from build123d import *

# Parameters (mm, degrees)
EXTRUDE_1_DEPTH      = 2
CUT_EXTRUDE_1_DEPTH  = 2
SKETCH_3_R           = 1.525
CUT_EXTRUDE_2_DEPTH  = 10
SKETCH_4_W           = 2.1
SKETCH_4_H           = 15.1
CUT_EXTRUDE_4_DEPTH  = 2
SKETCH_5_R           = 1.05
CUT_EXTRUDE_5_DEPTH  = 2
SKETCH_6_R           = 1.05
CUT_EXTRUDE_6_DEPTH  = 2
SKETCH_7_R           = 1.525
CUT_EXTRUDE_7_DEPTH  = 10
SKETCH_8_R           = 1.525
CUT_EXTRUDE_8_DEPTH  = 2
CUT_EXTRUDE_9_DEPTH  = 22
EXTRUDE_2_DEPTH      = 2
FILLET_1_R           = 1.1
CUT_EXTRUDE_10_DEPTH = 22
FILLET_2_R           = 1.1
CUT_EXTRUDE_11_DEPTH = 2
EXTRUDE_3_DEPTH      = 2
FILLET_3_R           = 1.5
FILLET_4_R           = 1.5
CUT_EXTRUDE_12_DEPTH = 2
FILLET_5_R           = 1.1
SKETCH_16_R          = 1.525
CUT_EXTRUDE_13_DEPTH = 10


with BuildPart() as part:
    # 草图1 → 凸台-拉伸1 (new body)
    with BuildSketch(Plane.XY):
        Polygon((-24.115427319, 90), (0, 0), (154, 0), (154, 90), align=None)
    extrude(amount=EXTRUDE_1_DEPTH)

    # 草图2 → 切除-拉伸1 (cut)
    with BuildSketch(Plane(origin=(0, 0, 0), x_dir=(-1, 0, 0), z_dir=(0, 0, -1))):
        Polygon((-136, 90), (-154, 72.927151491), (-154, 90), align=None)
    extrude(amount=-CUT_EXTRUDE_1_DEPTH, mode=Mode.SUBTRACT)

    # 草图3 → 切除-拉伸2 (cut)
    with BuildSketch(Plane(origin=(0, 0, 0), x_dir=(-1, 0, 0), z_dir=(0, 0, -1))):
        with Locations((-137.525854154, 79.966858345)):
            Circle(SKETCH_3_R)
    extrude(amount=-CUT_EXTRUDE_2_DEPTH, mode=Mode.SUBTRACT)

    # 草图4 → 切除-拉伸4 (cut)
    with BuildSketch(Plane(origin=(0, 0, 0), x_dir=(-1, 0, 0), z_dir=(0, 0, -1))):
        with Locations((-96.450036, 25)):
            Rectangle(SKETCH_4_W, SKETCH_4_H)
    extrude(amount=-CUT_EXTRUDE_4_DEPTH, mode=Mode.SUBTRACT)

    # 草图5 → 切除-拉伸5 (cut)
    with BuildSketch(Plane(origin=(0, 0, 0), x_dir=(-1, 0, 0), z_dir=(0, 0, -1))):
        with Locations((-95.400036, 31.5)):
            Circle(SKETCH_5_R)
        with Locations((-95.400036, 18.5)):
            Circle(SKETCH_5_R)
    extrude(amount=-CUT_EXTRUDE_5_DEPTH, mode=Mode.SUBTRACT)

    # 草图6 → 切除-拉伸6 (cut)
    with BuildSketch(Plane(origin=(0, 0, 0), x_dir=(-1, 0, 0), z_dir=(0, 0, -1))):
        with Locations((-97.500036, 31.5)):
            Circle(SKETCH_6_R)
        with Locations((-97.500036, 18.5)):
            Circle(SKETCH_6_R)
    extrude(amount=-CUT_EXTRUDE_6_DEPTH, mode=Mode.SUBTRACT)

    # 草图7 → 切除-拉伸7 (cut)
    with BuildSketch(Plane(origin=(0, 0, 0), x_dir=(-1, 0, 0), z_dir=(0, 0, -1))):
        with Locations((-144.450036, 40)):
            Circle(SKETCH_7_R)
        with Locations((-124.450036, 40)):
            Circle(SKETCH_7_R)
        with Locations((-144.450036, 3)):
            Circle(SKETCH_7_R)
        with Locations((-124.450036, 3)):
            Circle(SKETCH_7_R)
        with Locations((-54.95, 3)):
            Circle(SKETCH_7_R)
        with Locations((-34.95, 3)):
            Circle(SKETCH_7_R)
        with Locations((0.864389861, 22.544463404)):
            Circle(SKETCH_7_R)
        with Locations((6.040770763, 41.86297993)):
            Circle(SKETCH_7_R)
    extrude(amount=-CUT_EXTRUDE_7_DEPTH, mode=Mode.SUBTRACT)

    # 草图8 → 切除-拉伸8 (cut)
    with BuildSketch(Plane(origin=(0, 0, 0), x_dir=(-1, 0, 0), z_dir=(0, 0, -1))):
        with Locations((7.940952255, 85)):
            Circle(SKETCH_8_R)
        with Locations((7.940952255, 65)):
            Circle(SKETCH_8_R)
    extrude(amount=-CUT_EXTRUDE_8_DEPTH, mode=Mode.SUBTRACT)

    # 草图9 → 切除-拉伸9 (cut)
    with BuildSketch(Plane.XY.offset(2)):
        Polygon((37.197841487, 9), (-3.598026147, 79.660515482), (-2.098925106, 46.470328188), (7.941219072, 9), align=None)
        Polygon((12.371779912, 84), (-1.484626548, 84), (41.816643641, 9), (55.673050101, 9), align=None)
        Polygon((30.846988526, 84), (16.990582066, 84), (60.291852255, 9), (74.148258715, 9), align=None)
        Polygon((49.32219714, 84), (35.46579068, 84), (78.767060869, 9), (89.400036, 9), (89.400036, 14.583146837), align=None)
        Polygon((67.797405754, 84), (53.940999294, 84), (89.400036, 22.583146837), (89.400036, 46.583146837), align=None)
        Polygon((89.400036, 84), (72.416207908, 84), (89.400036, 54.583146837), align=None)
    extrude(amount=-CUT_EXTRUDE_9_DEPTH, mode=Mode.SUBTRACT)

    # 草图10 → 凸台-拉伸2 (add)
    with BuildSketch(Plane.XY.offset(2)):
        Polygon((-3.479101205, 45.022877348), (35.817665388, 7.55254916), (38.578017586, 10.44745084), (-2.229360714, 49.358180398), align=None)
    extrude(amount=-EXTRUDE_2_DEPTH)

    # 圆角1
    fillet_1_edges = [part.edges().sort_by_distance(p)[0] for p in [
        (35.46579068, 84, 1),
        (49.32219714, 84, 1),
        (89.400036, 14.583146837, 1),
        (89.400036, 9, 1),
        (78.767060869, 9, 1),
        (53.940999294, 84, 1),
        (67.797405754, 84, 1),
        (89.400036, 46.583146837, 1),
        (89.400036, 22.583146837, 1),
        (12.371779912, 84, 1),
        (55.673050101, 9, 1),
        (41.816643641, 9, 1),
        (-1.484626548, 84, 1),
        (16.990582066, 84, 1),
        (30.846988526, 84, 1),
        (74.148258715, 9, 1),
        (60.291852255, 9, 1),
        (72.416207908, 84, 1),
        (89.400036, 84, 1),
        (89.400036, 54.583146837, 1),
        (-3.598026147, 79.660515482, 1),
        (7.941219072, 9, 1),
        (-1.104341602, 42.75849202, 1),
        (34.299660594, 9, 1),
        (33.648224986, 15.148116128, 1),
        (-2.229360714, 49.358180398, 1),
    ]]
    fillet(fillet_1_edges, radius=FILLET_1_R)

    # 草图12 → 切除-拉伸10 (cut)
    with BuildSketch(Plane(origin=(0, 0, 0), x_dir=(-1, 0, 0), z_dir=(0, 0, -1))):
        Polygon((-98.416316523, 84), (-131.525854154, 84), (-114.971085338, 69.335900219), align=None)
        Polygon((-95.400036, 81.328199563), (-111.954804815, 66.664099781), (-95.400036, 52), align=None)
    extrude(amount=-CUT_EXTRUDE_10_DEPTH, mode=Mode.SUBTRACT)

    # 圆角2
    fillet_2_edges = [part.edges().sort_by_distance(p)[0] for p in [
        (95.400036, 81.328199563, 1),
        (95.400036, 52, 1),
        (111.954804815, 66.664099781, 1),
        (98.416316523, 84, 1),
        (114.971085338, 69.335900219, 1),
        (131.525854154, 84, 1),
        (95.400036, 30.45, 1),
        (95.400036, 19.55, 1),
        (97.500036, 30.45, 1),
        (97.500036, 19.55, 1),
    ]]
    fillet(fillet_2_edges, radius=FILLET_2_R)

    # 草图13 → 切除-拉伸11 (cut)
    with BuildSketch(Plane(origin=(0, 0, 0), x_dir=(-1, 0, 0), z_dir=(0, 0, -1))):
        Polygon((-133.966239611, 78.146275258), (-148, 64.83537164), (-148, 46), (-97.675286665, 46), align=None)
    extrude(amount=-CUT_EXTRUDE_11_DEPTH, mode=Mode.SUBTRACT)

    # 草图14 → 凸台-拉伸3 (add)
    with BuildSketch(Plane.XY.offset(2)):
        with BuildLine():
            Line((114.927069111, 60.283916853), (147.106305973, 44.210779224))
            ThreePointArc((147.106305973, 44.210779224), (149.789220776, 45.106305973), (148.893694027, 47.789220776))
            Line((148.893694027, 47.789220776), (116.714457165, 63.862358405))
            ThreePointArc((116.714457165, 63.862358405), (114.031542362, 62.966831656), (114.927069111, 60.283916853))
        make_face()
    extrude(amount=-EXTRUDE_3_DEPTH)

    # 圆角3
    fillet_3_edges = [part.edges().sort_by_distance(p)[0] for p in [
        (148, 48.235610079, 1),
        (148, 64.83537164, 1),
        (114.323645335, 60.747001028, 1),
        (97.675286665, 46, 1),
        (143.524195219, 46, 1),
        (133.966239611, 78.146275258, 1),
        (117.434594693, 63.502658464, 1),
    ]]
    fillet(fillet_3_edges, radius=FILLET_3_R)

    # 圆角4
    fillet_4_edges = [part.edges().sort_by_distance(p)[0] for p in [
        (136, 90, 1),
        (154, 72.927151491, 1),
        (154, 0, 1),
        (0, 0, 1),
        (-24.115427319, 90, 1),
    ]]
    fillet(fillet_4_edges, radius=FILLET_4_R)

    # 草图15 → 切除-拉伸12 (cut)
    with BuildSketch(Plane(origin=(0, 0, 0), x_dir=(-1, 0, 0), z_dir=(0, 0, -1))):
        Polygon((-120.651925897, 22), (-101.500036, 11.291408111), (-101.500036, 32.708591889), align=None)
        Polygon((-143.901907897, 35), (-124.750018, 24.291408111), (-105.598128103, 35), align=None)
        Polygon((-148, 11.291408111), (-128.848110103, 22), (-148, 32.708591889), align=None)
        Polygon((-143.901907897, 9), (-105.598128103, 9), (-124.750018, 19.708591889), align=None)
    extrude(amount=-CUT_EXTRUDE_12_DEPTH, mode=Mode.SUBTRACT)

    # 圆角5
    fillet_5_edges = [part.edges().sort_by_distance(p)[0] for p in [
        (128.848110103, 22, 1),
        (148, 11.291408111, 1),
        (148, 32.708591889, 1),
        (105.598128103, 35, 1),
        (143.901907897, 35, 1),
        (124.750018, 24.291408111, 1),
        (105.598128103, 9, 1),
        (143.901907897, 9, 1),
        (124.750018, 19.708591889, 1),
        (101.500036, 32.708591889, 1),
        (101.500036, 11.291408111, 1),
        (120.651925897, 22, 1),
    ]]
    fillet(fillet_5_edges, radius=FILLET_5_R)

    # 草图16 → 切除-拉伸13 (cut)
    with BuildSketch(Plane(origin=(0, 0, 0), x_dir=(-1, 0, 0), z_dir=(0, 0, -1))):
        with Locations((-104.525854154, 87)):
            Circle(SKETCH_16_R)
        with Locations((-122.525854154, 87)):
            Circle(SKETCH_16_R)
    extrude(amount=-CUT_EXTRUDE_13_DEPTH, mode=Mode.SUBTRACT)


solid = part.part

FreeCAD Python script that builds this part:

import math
import FreeCAD as App
import Part
import Sketcher

V = App.Vector
Q = App.Units.Quantity


def edges_at(feature, points):
    """Names of the edges that pass closest to the given points."""
    edges = feature.Shape.Edges
    near = lambda p: min(range(len(edges)), key=lambda i: edges[i].distToShape(Part.Vertex(*p))[0])
    return sorted({f"Edge{near(p) + 1}" for p in points})

doc = App.newDocument("Part")
body = doc.addObject("PartDesign::Body", "Body")

sketch1 = body.newObject("Sketcher::SketchObject", "Sketch")
sketch1.AttachmentSupport = (doc.getObject("XY_Plane"), [""])
sketch1.MapMode = "FlatFace"
sketch1.addGeometry([
    Part.LineSegment(V(-24, 90, 0), V(0, 0, 0)),
    Part.LineSegment(V(0, 0, 0), V(154, 0, 0)),
    Part.LineSegment(V(154, 0, 0), V(154, 90, 0)),
    Part.LineSegment(V(154, 90, 0), V(-24, 90, 0)),
], False)
sketch1.addConstraint([
    Sketcher.Constraint("Coincident", 0, 2, 1, 1),
    Sketcher.Constraint("Coincident", 1, 2, 2, 1),
    Sketcher.Constraint("Coincident", 2, 2, 3, 1),
    Sketcher.Constraint("Coincident", 3, 2, 0, 1),
    Sketcher.Constraint("Horizontal", 1),
    Sketcher.Constraint("Vertical", 2),
    Sketcher.Constraint("Horizontal", 3),
    Sketcher.Constraint("Coincident", 0, 2, -1, 1),
    Sketcher.Constraint("DistanceX", 1, 1, 1, 2, 154.0),
    Sketcher.Constraint("DistanceY", 2, 1, 2, 2, 90.0),
    Sketcher.Constraint("Angle", 0, Q("-75 deg")),
])
pad1 = body.newObject("PartDesign::Pad", "Pad")
pad1.Profile = sketch1
pad1.Length = 2

sketch2 = body.newObject("Sketcher::SketchObject", "Sketch001")
sketch2.AttachmentSupport = (doc.getObject("XY_Plane"), [""])
sketch2.MapMode = "FlatFace"
sketch2.addGeometry([
    Part.LineSegment(V(154, 73, 0), V(136, 90, 0)),
    Part.LineSegment(V(136, 90, 0), V(154, 90, 0)),
    Part.LineSegment(V(154, 90, 0), V(154, 73, 0)),
], False)
sketch2.addConstraint([
    Sketcher.Constraint("Coincident", 0, 2, 1, 1),
    Sketcher.Constraint("Coincident", 1, 2, 2, 1),
    Sketcher.Constraint("Coincident", 2, 2, 0, 1),
    Sketcher.Constraint("Horizontal", 1),
    Sketcher.Constraint("Vertical", 2),
    Sketcher.Constraint("DistanceX", 1, 1, 1, 2, 18.0),
    Sketcher.Constraint("DistanceX", -1, 1, 0, 2, 136.0),
    Sketcher.Constraint("DistanceY", -1, 1, 0, 2, 90.0),
    Sketcher.Constraint("DistanceY", 2, 2, 2, 1, 17.072849),
])
pocket1 = body.newObject("PartDesign::Pocket", "Pocket")
pocket1.Profile = sketch2
pocket1.Length = 2
pocket1.Reversed = True

sketch3 = body.newObject("Sketcher::SketchObject", "Sketch002")
sketch3.AttachmentSupport = (doc.getObject("XY_Plane"), [""])
sketch3.MapMode = "FlatFace"
sketch3.addGeometry(Part.Circle(V(137.5, 80, 0), V(0, 0, 1), 1.5), False)
sketch3.addConstraint([
    Sketcher.Constraint("Diameter", 0, 3.05),
    Sketcher.Constraint("DistanceY", -1, 1, 0, 3, 79.966858),
    Sketcher.Constraint("DistanceX", -1, 1, 0, 3, 137.525854),
])
pocket2 = body.newObject("PartDesign::Pocket", "Pocket001")
pocket2.Profile = sketch3
pocket2.Length = 10
pocket2.Reversed = True

sketch4 = body.newObject("Sketcher::SketchObject", "Sketch003")
sketch4.AttachmentSupport = (doc.getObject("XY_Plane"), [""])
sketch4.MapMode = "FlatFace"
sketch4.addGeometry([
    Part.LineSegment(V(97.5, 32.5, 0), V(97.5, 17.4, 0)),
    Part.LineSegment(V(97.5, 17.4, 0), V(95.4, 17.4, 0)),
    Part.LineSegment(V(95.4, 17.4, 0), V(95.4, 32.5, 0)),
    Part.LineSegment(V(95.4, 32.5, 0), V(97.5, 32.5, 0)),
], False)
sketch4.addConstraint([
    Sketcher.Constraint("Coincident", 0, 2, 1, 1),
    Sketcher.Constraint("Coincident", 1, 2, 2, 1),
    Sketcher.Constraint("Coincident", 2, 2, 3, 1),
    Sketcher.Constraint("Coincident", 3, 2, 0, 1),
    Sketcher.Constraint("Vertical", 0),
    Sketcher.Constraint("Horizontal", 1),
    Sketcher.Constraint("Vertical", 2),
    Sketcher.Constraint("Horizontal", 3),
    Sketcher.Constraint("DistanceX", 1, 2, 1, 1, 2.1),
    Sketcher.Constraint("DistanceY", 0, 2, 0, 1, 15.1),
    Sketcher.Constraint("DistanceY", -1, 1, 0, 2, 17.45),
    Sketcher.Constraint("DistanceX", -1, 1, 0, 2, 97.500036),
])
pocket3 = body.newObject("PartDesign::Pocket", "Pocket002")
pocket3.Profile = sketch4
pocket3.Length = 2
pocket3.Reversed = True

sketch5 = body.newObject("Sketcher::SketchObject", "Sketch004")
sketch5.AttachmentSupport = (doc.getObject("XY_Plane"), [""])
sketch5.MapMode = "FlatFace"
sketch5.addGeometry([
    Part.Circle(V(95.4, 31.5, 0), V(0, 0, 1), 1.1),
    Part.Circle(V(95.4, 18.5, 0), V(0, 0, 1), 1.1),
], False)
sketch5.addConstraint([
    Sketcher.Constraint("Equal", 0, 1),
    Sketcher.Constraint("Vertical", 0, 3, 1, 3),
    Sketcher.Constraint("Diameter", 0, 2.1),
    Sketcher.Constraint("DistanceY", 1, 3, 0, 3, 13.0),
    Sketcher.Constraint("DistanceY", -1, 1, 0, 3, 31.5),
    Sketcher.Constraint("DistanceX", -1, 1, 0, 3, 95.400036),
])
pocket4 = body.newObject("PartDesign::Pocket", "Pocket003")
pocket4.Profile = sketch5
pocket4.Length = 2
pocket4.Reversed = True

sketch6 = body.newObject("Sketcher::SketchObject", "Sketch005")
sketch6.AttachmentSupport = (doc.getObject("XY_Plane"), [""])
sketch6.MapMode = "FlatFace"
sketch6.addGeometry([
    Part.Circle(V(97.5, 31.5, 0), V(0, 0, 1), 1.1),
    Part.Circle(V(97.5, 18.5, 0), V(0, 0, 1), 1.1),
], False)
sketch6.addConstraint([
    Sketcher.Constraint("Equal", 0, 1),
    Sketcher.Constraint("Vertical", 0, 3, 1, 3),
    Sketcher.Constraint("Diameter", 0, 2.1),
    Sketcher.Constraint("DistanceY", 1, 3, 0, 3, 13.0),
    Sketcher.Constraint("DistanceY", -1, 1, 0, 3, 31.5),
    Sketcher.Constraint("DistanceX", -1, 1, 0, 3, 97.500036),
])
pocket5 = body.newObject("PartDesign::Pocket", "Pocket004")
pocket5.Profile = sketch6
pocket5.Length = 2
pocket5.Reversed = True

sketch7 = body.newObject("Sketcher::SketchObject", "Sketch006")
sketch7.AttachmentSupport = (doc.getObject("XY_Plane"), [""])
sketch7.MapMode = "FlatFace"
sketch7.addGeometry([
    Part.Circle(V(144.5, 40, 0), V(0, 0, 1), 1.5),
    Part.Circle(V(124.5, 40, 0), V(0, 0, 1), 1.5),
    Part.Circle(V(144.5, 3, 0), V(0, 0, 1), 1.5),
    Part.Circle(V(124.5, 3, 0), V(0, 0, 1), 1.5),
    Part.Circle(V(55, 3, 0), V(0, 0, 1), 1.5),
    Part.Circle(V(35, 3, 0), V(0, 0, 1), 1.5),
    Part.Circle(V(-0.9, 22.5, 0), V(0, 0, 1), 1.5),
    Part.Circle(V(-6, 41.9, 0), V(0, 0, 1), 1.5),
], False)
sketch7.addConstraint([
    Sketcher.Constraint("Equal", 0, 1),
    Sketcher.Constraint("Equal", 1, 2),
    Sketcher.Constraint("Equal", 2, 3),
    Sketcher.Constraint("Equal", 3, 4),
    Sketcher.Constraint("Equal", 4, 5),
    Sketcher.Constraint("Equal", 5, 6),
    Sketcher.Constraint("Equal", 6, 7),
    Sketcher.Constraint("Horizontal", 0, 3, 1, 3),
    Sketcher.Constraint("Horizontal", 2, 3, 3, 3),
    Sketcher.Constraint("Horizontal", 3, 3, 4, 3),
    Sketcher.Constraint("Horizontal", 4, 3, 5, 3),
    Sketcher.Constraint("Vertical", 0, 3, 2, 3),
    Sketcher.Constraint("Vertical", 1, 3, 3, 3),
    Sketcher.Constraint("Diameter", 0, 3.05),
    Sketcher.Constraint("DistanceY", -1, 1, 0, 3, 40.0),
    Sketcher.Constraint("DistanceY", -1, 1, 2, 3, 3.0),
    Sketcher.Constraint("DistanceX", 1, 3, 0, 3, 20.0),
    Sketcher.Constraint("DistanceX", 5, 3, 4, 3, 20.0),
    Sketcher.Constraint("DistanceX", -1, 1, 4, 3, 54.95),
    Sketcher.Constraint("DistanceX", 6, 3, -1, 1, 0.86439),
    Sketcher.Constraint("DistanceX", 7, 3, -1, 1, 6.040771),
    Sketcher.Constraint("DistanceY", -1, 1, 7, 3, 41.86298),
    Sketcher.Constraint("DistanceX", -1, 1, 0, 3, 144.450036),
    Sketcher.Constraint("DistanceY", -1, 1, 6, 3, 22.544463),
])
pocket6 = body.newObject("PartDesign::Pocket", "Pocket005")
pocket6.Profile = sketch7
pocket6.Length = 10
pocket6.Reversed = True

sketch8 = body.newObject("Sketcher::SketchObject", "Sketch007")
sketch8.AttachmentSupport = (doc.getObject("XY_Plane"), [""])
sketch8.MapMode = "FlatFace"
sketch8.addGeometry([
    Part.Circle(V(-7.9, 85, 0), V(0, 0, 1), 1.5),
    Part.Circle(V(-7.9, 65, 0), V(0, 0, 1), 1.5),
], False)
sketch8.addConstraint([
    Sketcher.Constraint("Equal", 0, 1),
    Sketcher.Constraint("Vertical", 0, 3, 1, 3),
    Sketcher.Constraint("Diameter", 0, 3.05),
    Sketcher.Constraint("DistanceY", -1, 1, 0, 3, 85.0),
    Sketcher.Constraint("DistanceY", -1, 1, 1, 3, 65.0),
    Sketcher.Constraint("DistanceX", 0, 3, -1, 1, 7.940952),
])
pocket7 = body.newObject("PartDesign::Pocket", "Pocket006")
pocket7.Profile = sketch8
pocket7.Length = 2
pocket7.Reversed = True

sketch9 = body.newObject("Sketcher::SketchObject", "Sketch008")
sketch9.AttachmentSupport = (doc.getObject("XY_Plane"), [""])
sketch9.MapMode = "FlatFace"
sketch9.AttachmentOffset = App.Placement(V(0, 0, 2), App.Rotation())
sketch9.addGeometry([
    Part.LineSegment(V(37, 9, 0), V(-4, 80, 0)),
    Part.LineSegment(V(-4, 80, 0), V(-2, 46, 0)),
    Part.LineSegment(V(-2, 46, 0), V(8, 9, 0)),
    Part.LineSegment(V(8, 9, 0), V(37, 9, 0)),
    Part.LineSegment(V(12, 84, 0), V(-1, 84, 0)),
    Part.LineSegment(V(-1, 84, 0), V(42, 9, 0)),
    Part.LineSegment(V(42, 9, 0), V(56, 9, 0)),
    Part.LineSegment(V(56, 9, 0), V(12, 84, 0)),
    Part.LineSegment(V(31, 84, 0), V(17, 84, 0)),
    Part.LineSegment(V(17, 84, 0), V(60, 9, 0)),
    Part.LineSegment(V(60, 9, 0), V(74, 9, 0)),
    Part.LineSegment(V(74, 9, 0), V(31, 84, 0)),
    Part.LineSegment(V(49, 84, 0), V(35, 84, 0)),
    Part.LineSegment(V(35, 84, 0), V(79, 9, 0)),
    Part.LineSegment(V(79, 9, 0), V(89, 9, 0)),
    Part.LineSegment(V(89, 9, 0), V(89, 15, 0)),
    Part.LineSegment(V(89, 15, 0), V(49, 84, 0)),
    Part.LineSegment(V(68, 84, 0), V(54, 84, 0)),
    Part.LineSegment(V(54, 84, 0), V(89, 23, 0)),
    Part.LineSegment(V(89, 23, 0), V(89, 47, 0)),
    Part.LineSegment(V(89, 47, 0), V(68, 84, 0)),
    Part.LineSegment(V(89, 84, 0), V(72, 84, 0)),
    Part.LineSegment(V(72, 84, 0), V(89, 55, 0)),
    Part.LineSegment(V(89, 55, 0), V(89, 84, 0)),
], False)
sketch9.addConstraint([
    Sketcher.Constraint("Coincident", 0, 2, 1, 1),
    Sketcher.Constraint("Coincident", 1, 2, 2, 1),
    Sketcher.Constraint("Coincident", 2, 2, 3, 1),
    Sketcher.Constraint("Coincident", 3, 2, 0, 1),
    Sketcher.Constraint("Coincident", 4, 2, 5, 1),
    Sketcher.Constraint("Coincident", 5, 2, 6, 1),
    Sketcher.Constraint("Coincident", 6, 2, 7, 1),
    Sketcher.Constraint("Coincident", 7, 2, 4, 1),
    Sketcher.Constraint("Coincident", 8, 2, 9, 1),
    Sketcher.Constraint("Coincident", 9, 2, 10, 1),
    Sketcher.Constraint("Coincident", 10, 2, 11, 1),
    Sketcher.Constraint("Coincident", 11, 2, 8, 1),
    Sketcher.Constraint("Coincident", 12, 2, 13, 1),
    Sketcher.Constraint("Coincident", 13, 2, 14, 1),
    Sketcher.Constraint("Coincident", 14, 2, 15, 1),
    Sketcher.Constraint("Coincident", 15, 2, 16, 1),
    Sketcher.Constraint("Coincident", 16, 2, 12, 1),
    Sketcher.Constraint("Coincident", 17, 2, 18, 1),
    Sketcher.Constraint("Coincident", 18, 2, 19, 1),
    Sketcher.Constraint("Coincident", 19, 2, 20, 1),
    Sketcher.Constraint("Coincident", 20, 2, 17, 1),
    Sketcher.Constraint("Coincident", 21, 2, 22, 1),
    Sketcher.Constraint("Coincident", 22, 2, 23, 1),
    Sketcher.Constraint("Coincident", 23, 2, 21, 1),
    Sketcher.Constraint("Horizontal", 3),
    Sketcher.Constraint("Horizontal", 4),
    Sketcher.Constraint("Horizontal", 6),
    Sketcher.Constraint("Horizontal", 8),
    Sketcher.Constraint("Horizontal", 10),
    Sketcher.Constraint("Horizontal", 12),
    Sketcher.Constraint("Horizontal", 14),
    Sketcher.Constraint("Vertical", 15),
    Sketcher.Constraint("Horizontal", 17),
    Sketcher.Constraint("Vertical", 19),
    Sketcher.Constraint("Horizontal", 21),
    Sketcher.Constraint("Vertical", 23),
    Sketcher.Constraint("Parallel", 0, 5),
    Sketcher.Constraint("Parallel", 5, 7),
    Sketcher.Constraint("Parallel", 7, 9),
    Sketcher.Constraint("Parallel", 9, 11),
    Sketcher.Constraint("Parallel", 11, 13),
    Sketcher.Constraint("Parallel", 13, 16),
    Sketcher.Constraint("Parallel", 16, 18),
    Sketcher.Constraint("Parallel", 18, 20),
    Sketcher.Constraint("Parallel", 20, 22),
    Sketcher.Constraint("Horizontal", 3, 2, 5, 2),
    Sketcher.Constraint("Horizontal", 7, 2, 8, 2),
    Sketcher.Constraint("Horizontal", 6, 2, 9, 2),
    Sketcher.Constraint("Horizontal", 11, 2, 12, 2),
    Sketcher.Constraint("Horizontal", 10, 2, 13, 2),
    Sketcher.Constraint("Horizontal", 16, 2, 17, 2),
    Sketcher.Constraint("Horizontal", 20, 2, 21, 2),
    Sketcher.Constraint("Vertical", 15, 2, 18, 2),
    Sketcher.Constraint("Vertical", 19, 2, 22, 2),
    Sketcher.Constraint("Equal", 6, 8),
    Sketcher.Constraint("Equal", 10, 12),
    Sketcher.Constraint("Equal", 12, 17),
    Sketcher.Constraint("DistanceY", 19, 1, 19, 2, 24.0),
    Sketcher.Constraint("Angle", 0, Q("120 deg")),
    Sketcher.Constraint("Angle", 2, Q("-75 deg")),
    Sketcher.Constraint("DistanceY", -1, 1, 2, 2, 9.0),
    Sketcher.Constraint("DistanceY", -1, 1, 4, 2, 84.0),
    Sketcher.Constraint("DistanceY", 15, 2, 18, 2, 8.0),
    Sketcher.Constraint("DistanceY", 19, 2, 22, 2, 8.0),
    Sketcher.Constraint("DistanceX", -1, 1, 17, 2, 53.940999),
    Sketcher.Constraint("DistanceX", 21, 2, 21, 1, 16.983828),
    Sketcher.Constraint("DistanceX", 0, 2, 1, 2, 1.499101),
    Sketcher.Constraint("DistanceX", 0, 2, 4, 2, 2.1134),
    Sketcher.Constraint("Distance", 2, 38.792138),
    Sketcher.Constraint("DistanceX", 3, 1, 3, 2, 29.256622),
    Sketcher.Constraint("DistanceX", -1, 1, 2, 2, 7.941219),
    Sketcher.Constraint("DistanceX", -1, 1, 10, 2, 74.148259),
])
pocket8 = body.newObject("PartDesign::Pocket", "Pocket007")
pocket8.Profile = sketch9
pocket8.Length = 22

sketch10 = body.newObject("Sketcher::SketchObject", "Sketch009")
sketch10.AttachmentSupport = (doc.getObject("XY_Plane"), [""])
sketch10.MapMode = "FlatFace"
sketch10.AttachmentOffset = App.Placement(V(0, 0, 2), App.Rotation())
sketch10.addGeometry([
    Part.LineSegment(V(-3.5, 45, 0), V(35.8, 7.6, 0)),
    Part.LineSegment(V(35.8, 7.6, 0), V(38.6, 10.4, 0)),
    Part.LineSegment(V(38.6, 10.4, 0), V(-2.2, 49.4, 0)),
    Part.LineSegment(V(-2.2, 49.4, 0), V(-3.5, 45, 0)),
], False)
sketch10.addConstraint([
    Sketcher.Constraint("Coincident", 0, 2, 1, 1),
    Sketcher.Constraint("Coincident", 1, 2, 2, 1),
    Sketcher.Constraint("Coincident", 2, 2, 3, 1),
    Sketcher.Constraint("Coincident", 3, 2, 0, 1),
    Sketcher.Constraint("Perpendicular", 0, 1),
    Sketcher.Constraint("Perpendicular", 1, 2),
    Sketcher.Constraint("Distance", 1, 4.0),
    Sketcher.Constraint("DistanceX", 3, 2, -1, 1, 3.479101),
    Sketcher.Constraint("DistanceY", 0, 2, 1, 2, 2.894902),
    Sketcher.Constraint("Distance", 3, 4.51184),
    Sketcher.Constraint("DistanceY", -1, 1, 0, 2, 7.552549),
    Sketcher.Constraint("DistanceY", -1, 1, 2, 2, 49.35818),
])
pad2 = body.newObject("PartDesign::Pad", "Pad001")
pad2.Profile = sketch10
pad2.Length = 2
pad2.Reversed = True
doc.recompute()

fillet = body.newObject("PartDesign::Fillet", "Fillet")
fillet.Base = (pad2, edges_at(pad2, [
    (35.466, 84, 1),
    (49.322, 84, 1),
    (89.4, 14.583, 1),
    (89.4, 9, 1),
    (78.767, 9, 1),
    (53.941, 84, 1),
    (67.797, 84, 1),
    (89.4, 46.583, 1),
    (89.4, 22.583, 1),
    (12.372, 84, 1),
    (55.673, 9, 1),
    (41.817, 9, 1),
    (-1.485, 84, 1),
    (16.991, 84, 1),
    (30.847, 84, 1),
    (74.148, 9, 1),
    (60.292, 9, 1),
    (72.416, 84, 1),
    (89.4, 84, 1),
    (89.4, 54.583, 1),
    (-3.598, 79.661, 1),
    (7.941, 9, 1),
    (-1.104, 42.758, 1),
    (34.3, 9, 1),
    (33.648, 15.148, 1),
    (-2.229, 49.358, 1),
]))
fillet.Radius = 1.1

sketch11 = body.newObject("Sketcher::SketchObject", "Sketch010")
sketch11.AttachmentSupport = (doc.getObject("XY_Plane"), [""])
sketch11.MapMode = "FlatFace"
sketch11.addGeometry([
    Part.LineSegment(V(98, 84, 0), V(132, 84, 0)),
    Part.LineSegment(V(132, 84, 0), V(115, 69, 0)),
    Part.LineSegment(V(115, 69, 0), V(98, 84, 0)),
    Part.LineSegment(V(95, 81, 0), V(112, 67, 0)),
    Part.LineSegment(V(112, 67, 0), V(95, 52, 0)),
    Part.LineSegment(V(95, 52, 0), V(95, 81, 0)),
], False)
sketch11.addConstraint([
    Sketcher.Constraint("Coincident", 0, 2, 1, 1),
    Sketcher.Constraint("Coincident", 1, 2, 2, 1),
    Sketcher.Constraint("Coincident", 2, 2, 0, 1),
    Sketcher.Constraint("Coincident", 3, 2, 4, 1),
    Sketcher.Constraint("Coincident", 4, 2, 5, 1),
    Sketcher.Constraint("Coincident", 5, 2, 3, 1),
    Sketcher.Constraint("Horizontal", 0),
    Sketcher.Constraint("Vertical", 5),
    Sketcher.Constraint("Parallel", 2, 3),
    Sketcher.Constraint("Parallel", 1, 4),
    Sketcher.Constraint("Equal", 1, 2),
    Sketcher.Constraint("Equal", 2, 3),
    Sketcher.Constraint("DistanceY", -1, 1, 0, 2, 84.0),
    Sketcher.Constraint("DistanceY", -1, 1, 4, 2, 52.0),
    Sketcher.Constraint("DistanceY", 5, 1, 5, 2, 29.3282),
    Sketcher.Constraint("Distance", 1, 22.115519),
    Sketcher.Constraint("DistanceX", 3, 2, 1, 2, 3.016281),
    Sketcher.Constraint("DistanceX", -1, 1, 0, 2, 131.525854),
])
pocket9 = body.newObject("PartDesign::Pocket", "Pocket008")
pocket9.Profile = sketch11
pocket9.Length = 22
pocket9.Reversed = True
doc.recompute()

fillet2 = body.newObject("PartDesign::Fillet", "Fillet001")
fillet2.Base = (pocket9, edges_at(pocket9, [
    (95.4, 81.328, 1),
    (95.4, 52, 1),
    (111.955, 66.664, 1),
    (98.416, 84, 1),
    (114.971, 69.336, 1),
    (131.526, 84, 1),
    (95.4, 30.45, 1),
    (95.4, 19.55, 1),
    (97.5, 30.45, 1),
    (97.5, 19.55, 1),
]))
fillet2.Radius = 1.1

sketch12 = body.newObject("Sketcher::SketchObject", "Sketch011")
sketch12.AttachmentSupport = (doc.getObject("XY_Plane"), [""])
sketch12.MapMode = "FlatFace"
sketch12.addGeometry([
    Part.LineSegment(V(134, 78, 0), V(148, 65, 0)),
    Part.LineSegment(V(148, 65, 0), V(148, 46, 0)),
    Part.LineSegment(V(148, 46, 0), V(98, 46, 0)),
    Part.LineSegment(V(98, 46, 0), V(134, 78, 0)),
], False)
sketch12.addConstraint([
    Sketcher.Constraint("Coincident", 0, 2, 1, 1),
    Sketcher.Constraint("Coincident", 1, 2, 2, 1),
    Sketcher.Constraint("Coincident", 2, 2, 3, 1),
    Sketcher.Constraint("Coincident", 3, 2, 0, 1),
    Sketcher.Constraint("Vertical", 1),
    Sketcher.Constraint("Horizontal", 2),
    Sketcher.Constraint("DistanceX", -1, 1, 0, 2, 148.0),
    Sketcher.Constraint("DistanceY", -1, 1, 1, 2, 46.0),
    Sketcher.Constraint("DistanceY", 1, 2, 1, 1, 18.835372),
    Sketcher.Constraint("Distance", 3, 48.481092),
    Sketcher.Constraint("DistanceX", 2, 2, 2, 1, 50.324713),
    Sketcher.Constraint("DistanceX", -1, 1, 3, 2, 133.96624),
])
pocket10 = body.newObject("PartDesign::Pocket", "Pocket009")
pocket10.Profile = sketch12
pocket10.Length = 2
pocket10.Reversed = True

sketch13 = body.newObject("Sketcher::SketchObject", "Sketch012")
sketch13.AttachmentSupport = (doc.getObject("XY_Plane"), [""])
sketch13.MapMode = "FlatFace"
sketch13.AttachmentOffset = App.Placement(V(0, 0, 2), App.Rotation())
sketch13.addGeometry([
    Part.LineSegment(V(114.9, 60.3, 0), V(147.1, 44.2, 0)),
    Part.ArcOfCircle(Part.Circle(V(148, 46, 0), V(0, 0, 1), 2), math.radians(-117), math.radians(63)),
    Part.LineSegment(V(148.9, 47.8, 0), V(116.7, 63.9, 0)),
    Part.ArcOfCircle(Part.Circle(V(115.8, 62.1, 0), V(0, 0, 1), 2), math.radians(63), math.radians(243)),
], False)
sketch13.addConstraint([
    Sketcher.Constraint("Tangent", 0, 2, 1, 1),
    Sketcher.Constraint("Tangent", 1, 2, 2, 1),
    Sketcher.Constraint("Tangent", 2, 2, 3, 1),
    Sketcher.Constraint("Tangent", 3, 2, 0, 1),
    Sketcher.Constraint("Equal", 1, 3),
    Sketcher.Constraint("Radius", 1, 2.0),
    Sketcher.Constraint("DistanceX", -1, 1, 1, 3, 148.0),
    Sketcher.Constraint("DistanceY", -1, 1, 1, 3, 46.0),
    Sketcher.Constraint("DistanceY", -1, 1, 0, 2, 44.210779),
    Sketcher.Constraint("DistanceY", -1, 1, 2, 2, 63.862358),
])
pad3 = body.newObject("PartDesign::Pad", "Pad002")
pad3.Profile = sketch13
pad3.Length = 2
pad3.Reversed = True
doc.recompute()

fillet3 = body.newObject("PartDesign::Fillet", "Fillet002")
fillet3.Base = (pad3, edges_at(pad3, [
    (148, 48.236, 1),
    (148, 64.835, 1),
    (114.324, 60.747, 1),
    (97.675, 46, 1),
    (143.524, 46, 1),
    (133.966, 78.146, 1),
    (117.435, 63.503, 1),
]))
fillet3.Radius = 1.5
doc.recompute()

fillet4 = body.newObject("PartDesign::Fillet", "Fillet003")
fillet4.Base = (fillet3, edges_at(fillet3, [
    (136, 90, 1),
    (154, 72.927, 1),
    (154, 0, 1),
    (0, 0, 1),
    (-24.115, 90, 1),
]))
fillet4.Radius = 1.5

sketch14 = body.newObject("Sketcher::SketchObject", "Sketch013")
sketch14.AttachmentSupport = (doc.getObject("XY_Plane"), [""])
sketch14.MapMode = "FlatFace"
sketch14.addGeometry([
    Part.LineSegment(V(121, 22, 0), V(102, 11, 0)),
    Part.LineSegment(V(102, 11, 0), V(102, 33, 0)),
    Part.LineSegment(V(102, 33, 0), V(121, 22, 0)),
    Part.LineSegment(V(144, 35, 0), V(125, 24, 0)),
    Part.LineSegment(V(125, 24, 0), V(106, 35, 0)),
    Part.LineSegment(V(106, 35, 0), V(144, 35, 0)),
    Part.LineSegment(V(148, 11, 0), V(129, 22, 0)),
    Part.LineSegment(V(129, 22, 0), V(148, 33, 0)),
    Part.LineSegment(V(148, 33, 0), V(148, 11, 0)),
    Part.LineSegment(V(144, 9, 0), V(106, 9, 0)),
    Part.LineSegment(V(106, 9, 0), V(125, 20, 0)),
    Part.LineSegment(V(125, 20, 0), V(144, 9, 0)),
], False)
sketch14.addConstraint([
    Sketcher.Constraint("Coincident", 0, 2, 1, 1),
    Sketcher.Constraint("Coincident", 1, 2, 2, 1),
    Sketcher.Constraint("Coincident", 2, 2, 0, 1),
    Sketcher.Constraint("Coincident", 3, 2, 4, 1),
    Sketcher.Constraint("Coincident", 4, 2, 5, 1),
    Sketcher.Constraint("Coincident", 5, 2, 3, 1),
    Sketcher.Constraint("Coincident", 6, 2, 7, 1),
    Sketcher.Constraint("Coincident", 7, 2, 8, 1),
    Sketcher.Constraint("Coincident", 8, 2, 6, 1),
    Sketcher.Constraint("Coincident", 9, 2, 10, 1),
    Sketcher.Constraint("Coincident", 10, 2, 11, 1),
    Sketcher.Constraint("Coincident", 11, 2, 9, 1),
    Sketcher.Constraint("Vertical", 1),
    Sketcher.Constraint("Horizontal", 5),
    Sketcher.Constraint("Vertical", 8),
    Sketcher.Constraint("Horizontal", 9),
    Sketcher.Constraint("Parallel", 0, 3),
    Sketcher.Constraint("Parallel", 2, 4),
    Sketcher.Constraint("Parallel", 4, 6),
    Sketcher.Constraint("Parallel", 3, 7),
    Sketcher.Constraint("Parallel", 7, 10),
    Sketcher.Constraint("Parallel", 6, 11),
    Sketcher.Constraint("Horizontal", 2, 2, 6, 2),
    Sketcher.Constraint("Horizontal", 1, 2, 7, 2),
    Sketcher.Constraint("Horizontal", 0, 2, 8, 2),
    Sketcher.Constraint("Vertical", 4, 2, 9, 2),
    Sketcher.Constraint("Vertical", 3, 2, 10, 2),
    Sketcher.Constraint("Equal", 2, 3),
    Sketcher.Constraint("DistanceY", -1, 1, 2, 2, 22.0),
    Sketcher.Constraint("DistanceY", -1, 1, 4, 2, 35.0),
    Sketcher.Constraint("DistanceX", -1, 1, 7, 2, 148.0),
    Sketcher.Constraint("DistanceY", -1, 1, 9, 2, 9.0),
    Sketcher.Constraint("DistanceX", 5, 1, 5, 2, 38.30378),
    Sketcher.Constraint("DistanceY", 1, 1, 1, 2, 21.417184),
    Sketcher.Constraint("DistanceX", -1, 1, 4, 2, 105.598128),
    Sketcher.Constraint("DistanceX", 1, 2, 5, 2, 42.401872),
])
pocket11 = body.newObject("PartDesign::Pocket", "Pocket010")
pocket11.Profile = sketch14
pocket11.Length = 2
pocket11.Reversed = True
doc.recompute()

fillet5 = body.newObject("PartDesign::Fillet", "Fillet004")
fillet5.Base = (pocket11, edges_at(pocket11, [
    (128.848, 22, 1),
    (148, 11.291, 1),
    (148, 32.709, 1),
    (105.598, 35, 1),
    (143.902, 35, 1),
    (124.75, 24.291, 1),
    (105.598, 9, 1),
    (143.902, 9, 1),
    (124.75, 19.709, 1),
    (101.5, 32.709, 1),
    (101.5, 11.291, 1),
    (120.652, 22, 1),
]))
fillet5.Radius = 1.1

sketch15 = body.newObject("Sketcher::SketchObject", "Sketch014")
sketch15.AttachmentSupport = (doc.getObject("XY_Plane"), [""])
sketch15.MapMode = "FlatFace"
sketch15.addGeometry([
    Part.Circle(V(104.5, 87, 0), V(0, 0, 1), 1.5),
    Part.Circle(V(122.5, 87, 0), V(0, 0, 1), 1.5),
], False)
sketch15.addConstraint([
    Sketcher.Constraint("Equal", 0, 1),
    Sketcher.Constraint("Horizontal", 0, 3, 1, 3),
    Sketcher.Constraint("Diameter", 0, 3.05),
    Sketcher.Constraint("DistanceY", -1, 1, 0, 3, 87.0),
    Sketcher.Constraint("DistanceX", 0, 3, 1, 3, 18.0),
    Sketcher.Constraint("DistanceX", -1, 1, 0, 3, 104.525854),
])
pocket12 = body.newObject("PartDesign::Pocket", "Pocket011")
pocket12.Profile = sketch15
pocket12.Length = 10
pocket12.Reversed = True

doc.recompute()
